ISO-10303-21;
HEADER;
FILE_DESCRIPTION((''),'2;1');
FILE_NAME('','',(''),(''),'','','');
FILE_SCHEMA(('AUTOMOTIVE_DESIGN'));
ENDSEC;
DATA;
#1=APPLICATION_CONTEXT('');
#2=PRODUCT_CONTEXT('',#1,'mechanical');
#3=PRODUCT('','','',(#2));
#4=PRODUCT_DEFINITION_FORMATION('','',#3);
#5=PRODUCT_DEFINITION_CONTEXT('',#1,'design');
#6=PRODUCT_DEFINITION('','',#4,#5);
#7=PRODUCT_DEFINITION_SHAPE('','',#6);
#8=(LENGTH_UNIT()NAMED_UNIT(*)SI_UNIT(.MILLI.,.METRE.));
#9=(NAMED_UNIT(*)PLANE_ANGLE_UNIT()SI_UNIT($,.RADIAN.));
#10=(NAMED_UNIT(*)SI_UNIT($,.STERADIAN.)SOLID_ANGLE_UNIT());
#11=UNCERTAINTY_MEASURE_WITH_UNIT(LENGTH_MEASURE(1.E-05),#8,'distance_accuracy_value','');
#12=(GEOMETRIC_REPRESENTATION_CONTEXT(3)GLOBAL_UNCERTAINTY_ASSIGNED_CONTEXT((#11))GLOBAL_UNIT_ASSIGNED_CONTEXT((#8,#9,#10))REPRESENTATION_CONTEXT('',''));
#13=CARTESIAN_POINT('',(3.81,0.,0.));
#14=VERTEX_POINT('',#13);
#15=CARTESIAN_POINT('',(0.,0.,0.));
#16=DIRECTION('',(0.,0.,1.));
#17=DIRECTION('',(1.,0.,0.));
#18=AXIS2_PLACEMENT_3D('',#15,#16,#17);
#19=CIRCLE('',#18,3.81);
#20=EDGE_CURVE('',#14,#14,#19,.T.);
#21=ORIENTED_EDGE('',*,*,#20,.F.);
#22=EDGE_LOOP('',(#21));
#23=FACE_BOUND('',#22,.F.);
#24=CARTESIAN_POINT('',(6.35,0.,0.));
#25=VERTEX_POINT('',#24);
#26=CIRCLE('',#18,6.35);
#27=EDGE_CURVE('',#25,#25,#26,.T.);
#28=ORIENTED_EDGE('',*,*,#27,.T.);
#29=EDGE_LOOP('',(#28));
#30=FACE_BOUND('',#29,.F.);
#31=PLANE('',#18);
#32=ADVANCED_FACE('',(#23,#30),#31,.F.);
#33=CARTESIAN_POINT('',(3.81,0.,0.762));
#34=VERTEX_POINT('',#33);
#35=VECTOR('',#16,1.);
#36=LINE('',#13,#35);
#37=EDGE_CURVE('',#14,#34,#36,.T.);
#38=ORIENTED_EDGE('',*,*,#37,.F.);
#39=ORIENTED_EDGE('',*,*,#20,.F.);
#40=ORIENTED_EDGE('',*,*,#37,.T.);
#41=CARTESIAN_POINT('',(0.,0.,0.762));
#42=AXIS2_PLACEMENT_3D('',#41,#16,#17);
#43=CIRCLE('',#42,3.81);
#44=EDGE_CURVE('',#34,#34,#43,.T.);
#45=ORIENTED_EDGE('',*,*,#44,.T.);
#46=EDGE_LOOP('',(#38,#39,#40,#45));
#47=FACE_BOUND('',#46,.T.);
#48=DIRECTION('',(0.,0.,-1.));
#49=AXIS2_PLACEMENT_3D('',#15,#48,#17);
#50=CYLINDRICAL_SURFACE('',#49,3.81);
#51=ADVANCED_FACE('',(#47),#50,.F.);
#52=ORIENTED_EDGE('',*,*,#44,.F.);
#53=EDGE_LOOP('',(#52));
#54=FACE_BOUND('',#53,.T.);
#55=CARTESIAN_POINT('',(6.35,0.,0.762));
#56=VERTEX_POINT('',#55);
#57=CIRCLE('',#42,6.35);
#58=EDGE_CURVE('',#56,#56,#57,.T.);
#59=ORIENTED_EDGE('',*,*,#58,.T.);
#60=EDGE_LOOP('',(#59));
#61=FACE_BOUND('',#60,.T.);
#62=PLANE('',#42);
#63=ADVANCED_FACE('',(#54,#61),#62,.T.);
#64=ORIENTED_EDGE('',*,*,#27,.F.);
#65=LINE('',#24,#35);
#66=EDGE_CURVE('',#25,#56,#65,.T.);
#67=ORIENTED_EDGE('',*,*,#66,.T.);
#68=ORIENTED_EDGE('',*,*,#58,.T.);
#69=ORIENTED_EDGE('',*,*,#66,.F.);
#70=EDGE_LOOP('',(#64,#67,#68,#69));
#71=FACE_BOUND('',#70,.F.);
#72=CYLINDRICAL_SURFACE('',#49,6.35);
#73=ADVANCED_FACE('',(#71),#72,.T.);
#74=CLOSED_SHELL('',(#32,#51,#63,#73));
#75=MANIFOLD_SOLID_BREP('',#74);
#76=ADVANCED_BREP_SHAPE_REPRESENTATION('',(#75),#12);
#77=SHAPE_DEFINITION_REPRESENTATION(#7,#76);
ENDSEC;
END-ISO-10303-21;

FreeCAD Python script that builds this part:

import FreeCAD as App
import Part
import Sketcher
Q = App.Units.Quantity

doc = App.newDocument("Part")
body = doc.addObject("PartDesign::Body", "Body")

sketch1 = doc.addObject("Sketcher::SketchObject", "Sketch")
body.addObject(sketch1)
sketch1.AttachmentSupport = (doc.XY_Plane, [""])
sketch1.MapMode = "FlatFace"
sketch1.addGeometry([
    Part.Circle(App.Vector(0, 0, 0), App.Vector(0, 0, 1), 6.35),
    Part.Circle(App.Vector(0, 0, 0), App.Vector(0, 0, 1), 3.81),
], False)
sketch1.addConstraint([
    Sketcher.Constraint("Coincident", 0, 3, -1, 1),
    Sketcher.Constraint("Coincident", 1, 3, -1, 1),
    Sketcher.Constraint("Diameter", 0, Q("0.5 in")),
    Sketcher.Constraint("Diameter", 1, Q("0.3 in")),
])
pad1 = doc.addObject("PartDesign::Pad", "Pad")
body.addObject(pad1)
pad1.Profile = sketch1
pad1.Length = Q("0.03 in")

doc.recompute()
